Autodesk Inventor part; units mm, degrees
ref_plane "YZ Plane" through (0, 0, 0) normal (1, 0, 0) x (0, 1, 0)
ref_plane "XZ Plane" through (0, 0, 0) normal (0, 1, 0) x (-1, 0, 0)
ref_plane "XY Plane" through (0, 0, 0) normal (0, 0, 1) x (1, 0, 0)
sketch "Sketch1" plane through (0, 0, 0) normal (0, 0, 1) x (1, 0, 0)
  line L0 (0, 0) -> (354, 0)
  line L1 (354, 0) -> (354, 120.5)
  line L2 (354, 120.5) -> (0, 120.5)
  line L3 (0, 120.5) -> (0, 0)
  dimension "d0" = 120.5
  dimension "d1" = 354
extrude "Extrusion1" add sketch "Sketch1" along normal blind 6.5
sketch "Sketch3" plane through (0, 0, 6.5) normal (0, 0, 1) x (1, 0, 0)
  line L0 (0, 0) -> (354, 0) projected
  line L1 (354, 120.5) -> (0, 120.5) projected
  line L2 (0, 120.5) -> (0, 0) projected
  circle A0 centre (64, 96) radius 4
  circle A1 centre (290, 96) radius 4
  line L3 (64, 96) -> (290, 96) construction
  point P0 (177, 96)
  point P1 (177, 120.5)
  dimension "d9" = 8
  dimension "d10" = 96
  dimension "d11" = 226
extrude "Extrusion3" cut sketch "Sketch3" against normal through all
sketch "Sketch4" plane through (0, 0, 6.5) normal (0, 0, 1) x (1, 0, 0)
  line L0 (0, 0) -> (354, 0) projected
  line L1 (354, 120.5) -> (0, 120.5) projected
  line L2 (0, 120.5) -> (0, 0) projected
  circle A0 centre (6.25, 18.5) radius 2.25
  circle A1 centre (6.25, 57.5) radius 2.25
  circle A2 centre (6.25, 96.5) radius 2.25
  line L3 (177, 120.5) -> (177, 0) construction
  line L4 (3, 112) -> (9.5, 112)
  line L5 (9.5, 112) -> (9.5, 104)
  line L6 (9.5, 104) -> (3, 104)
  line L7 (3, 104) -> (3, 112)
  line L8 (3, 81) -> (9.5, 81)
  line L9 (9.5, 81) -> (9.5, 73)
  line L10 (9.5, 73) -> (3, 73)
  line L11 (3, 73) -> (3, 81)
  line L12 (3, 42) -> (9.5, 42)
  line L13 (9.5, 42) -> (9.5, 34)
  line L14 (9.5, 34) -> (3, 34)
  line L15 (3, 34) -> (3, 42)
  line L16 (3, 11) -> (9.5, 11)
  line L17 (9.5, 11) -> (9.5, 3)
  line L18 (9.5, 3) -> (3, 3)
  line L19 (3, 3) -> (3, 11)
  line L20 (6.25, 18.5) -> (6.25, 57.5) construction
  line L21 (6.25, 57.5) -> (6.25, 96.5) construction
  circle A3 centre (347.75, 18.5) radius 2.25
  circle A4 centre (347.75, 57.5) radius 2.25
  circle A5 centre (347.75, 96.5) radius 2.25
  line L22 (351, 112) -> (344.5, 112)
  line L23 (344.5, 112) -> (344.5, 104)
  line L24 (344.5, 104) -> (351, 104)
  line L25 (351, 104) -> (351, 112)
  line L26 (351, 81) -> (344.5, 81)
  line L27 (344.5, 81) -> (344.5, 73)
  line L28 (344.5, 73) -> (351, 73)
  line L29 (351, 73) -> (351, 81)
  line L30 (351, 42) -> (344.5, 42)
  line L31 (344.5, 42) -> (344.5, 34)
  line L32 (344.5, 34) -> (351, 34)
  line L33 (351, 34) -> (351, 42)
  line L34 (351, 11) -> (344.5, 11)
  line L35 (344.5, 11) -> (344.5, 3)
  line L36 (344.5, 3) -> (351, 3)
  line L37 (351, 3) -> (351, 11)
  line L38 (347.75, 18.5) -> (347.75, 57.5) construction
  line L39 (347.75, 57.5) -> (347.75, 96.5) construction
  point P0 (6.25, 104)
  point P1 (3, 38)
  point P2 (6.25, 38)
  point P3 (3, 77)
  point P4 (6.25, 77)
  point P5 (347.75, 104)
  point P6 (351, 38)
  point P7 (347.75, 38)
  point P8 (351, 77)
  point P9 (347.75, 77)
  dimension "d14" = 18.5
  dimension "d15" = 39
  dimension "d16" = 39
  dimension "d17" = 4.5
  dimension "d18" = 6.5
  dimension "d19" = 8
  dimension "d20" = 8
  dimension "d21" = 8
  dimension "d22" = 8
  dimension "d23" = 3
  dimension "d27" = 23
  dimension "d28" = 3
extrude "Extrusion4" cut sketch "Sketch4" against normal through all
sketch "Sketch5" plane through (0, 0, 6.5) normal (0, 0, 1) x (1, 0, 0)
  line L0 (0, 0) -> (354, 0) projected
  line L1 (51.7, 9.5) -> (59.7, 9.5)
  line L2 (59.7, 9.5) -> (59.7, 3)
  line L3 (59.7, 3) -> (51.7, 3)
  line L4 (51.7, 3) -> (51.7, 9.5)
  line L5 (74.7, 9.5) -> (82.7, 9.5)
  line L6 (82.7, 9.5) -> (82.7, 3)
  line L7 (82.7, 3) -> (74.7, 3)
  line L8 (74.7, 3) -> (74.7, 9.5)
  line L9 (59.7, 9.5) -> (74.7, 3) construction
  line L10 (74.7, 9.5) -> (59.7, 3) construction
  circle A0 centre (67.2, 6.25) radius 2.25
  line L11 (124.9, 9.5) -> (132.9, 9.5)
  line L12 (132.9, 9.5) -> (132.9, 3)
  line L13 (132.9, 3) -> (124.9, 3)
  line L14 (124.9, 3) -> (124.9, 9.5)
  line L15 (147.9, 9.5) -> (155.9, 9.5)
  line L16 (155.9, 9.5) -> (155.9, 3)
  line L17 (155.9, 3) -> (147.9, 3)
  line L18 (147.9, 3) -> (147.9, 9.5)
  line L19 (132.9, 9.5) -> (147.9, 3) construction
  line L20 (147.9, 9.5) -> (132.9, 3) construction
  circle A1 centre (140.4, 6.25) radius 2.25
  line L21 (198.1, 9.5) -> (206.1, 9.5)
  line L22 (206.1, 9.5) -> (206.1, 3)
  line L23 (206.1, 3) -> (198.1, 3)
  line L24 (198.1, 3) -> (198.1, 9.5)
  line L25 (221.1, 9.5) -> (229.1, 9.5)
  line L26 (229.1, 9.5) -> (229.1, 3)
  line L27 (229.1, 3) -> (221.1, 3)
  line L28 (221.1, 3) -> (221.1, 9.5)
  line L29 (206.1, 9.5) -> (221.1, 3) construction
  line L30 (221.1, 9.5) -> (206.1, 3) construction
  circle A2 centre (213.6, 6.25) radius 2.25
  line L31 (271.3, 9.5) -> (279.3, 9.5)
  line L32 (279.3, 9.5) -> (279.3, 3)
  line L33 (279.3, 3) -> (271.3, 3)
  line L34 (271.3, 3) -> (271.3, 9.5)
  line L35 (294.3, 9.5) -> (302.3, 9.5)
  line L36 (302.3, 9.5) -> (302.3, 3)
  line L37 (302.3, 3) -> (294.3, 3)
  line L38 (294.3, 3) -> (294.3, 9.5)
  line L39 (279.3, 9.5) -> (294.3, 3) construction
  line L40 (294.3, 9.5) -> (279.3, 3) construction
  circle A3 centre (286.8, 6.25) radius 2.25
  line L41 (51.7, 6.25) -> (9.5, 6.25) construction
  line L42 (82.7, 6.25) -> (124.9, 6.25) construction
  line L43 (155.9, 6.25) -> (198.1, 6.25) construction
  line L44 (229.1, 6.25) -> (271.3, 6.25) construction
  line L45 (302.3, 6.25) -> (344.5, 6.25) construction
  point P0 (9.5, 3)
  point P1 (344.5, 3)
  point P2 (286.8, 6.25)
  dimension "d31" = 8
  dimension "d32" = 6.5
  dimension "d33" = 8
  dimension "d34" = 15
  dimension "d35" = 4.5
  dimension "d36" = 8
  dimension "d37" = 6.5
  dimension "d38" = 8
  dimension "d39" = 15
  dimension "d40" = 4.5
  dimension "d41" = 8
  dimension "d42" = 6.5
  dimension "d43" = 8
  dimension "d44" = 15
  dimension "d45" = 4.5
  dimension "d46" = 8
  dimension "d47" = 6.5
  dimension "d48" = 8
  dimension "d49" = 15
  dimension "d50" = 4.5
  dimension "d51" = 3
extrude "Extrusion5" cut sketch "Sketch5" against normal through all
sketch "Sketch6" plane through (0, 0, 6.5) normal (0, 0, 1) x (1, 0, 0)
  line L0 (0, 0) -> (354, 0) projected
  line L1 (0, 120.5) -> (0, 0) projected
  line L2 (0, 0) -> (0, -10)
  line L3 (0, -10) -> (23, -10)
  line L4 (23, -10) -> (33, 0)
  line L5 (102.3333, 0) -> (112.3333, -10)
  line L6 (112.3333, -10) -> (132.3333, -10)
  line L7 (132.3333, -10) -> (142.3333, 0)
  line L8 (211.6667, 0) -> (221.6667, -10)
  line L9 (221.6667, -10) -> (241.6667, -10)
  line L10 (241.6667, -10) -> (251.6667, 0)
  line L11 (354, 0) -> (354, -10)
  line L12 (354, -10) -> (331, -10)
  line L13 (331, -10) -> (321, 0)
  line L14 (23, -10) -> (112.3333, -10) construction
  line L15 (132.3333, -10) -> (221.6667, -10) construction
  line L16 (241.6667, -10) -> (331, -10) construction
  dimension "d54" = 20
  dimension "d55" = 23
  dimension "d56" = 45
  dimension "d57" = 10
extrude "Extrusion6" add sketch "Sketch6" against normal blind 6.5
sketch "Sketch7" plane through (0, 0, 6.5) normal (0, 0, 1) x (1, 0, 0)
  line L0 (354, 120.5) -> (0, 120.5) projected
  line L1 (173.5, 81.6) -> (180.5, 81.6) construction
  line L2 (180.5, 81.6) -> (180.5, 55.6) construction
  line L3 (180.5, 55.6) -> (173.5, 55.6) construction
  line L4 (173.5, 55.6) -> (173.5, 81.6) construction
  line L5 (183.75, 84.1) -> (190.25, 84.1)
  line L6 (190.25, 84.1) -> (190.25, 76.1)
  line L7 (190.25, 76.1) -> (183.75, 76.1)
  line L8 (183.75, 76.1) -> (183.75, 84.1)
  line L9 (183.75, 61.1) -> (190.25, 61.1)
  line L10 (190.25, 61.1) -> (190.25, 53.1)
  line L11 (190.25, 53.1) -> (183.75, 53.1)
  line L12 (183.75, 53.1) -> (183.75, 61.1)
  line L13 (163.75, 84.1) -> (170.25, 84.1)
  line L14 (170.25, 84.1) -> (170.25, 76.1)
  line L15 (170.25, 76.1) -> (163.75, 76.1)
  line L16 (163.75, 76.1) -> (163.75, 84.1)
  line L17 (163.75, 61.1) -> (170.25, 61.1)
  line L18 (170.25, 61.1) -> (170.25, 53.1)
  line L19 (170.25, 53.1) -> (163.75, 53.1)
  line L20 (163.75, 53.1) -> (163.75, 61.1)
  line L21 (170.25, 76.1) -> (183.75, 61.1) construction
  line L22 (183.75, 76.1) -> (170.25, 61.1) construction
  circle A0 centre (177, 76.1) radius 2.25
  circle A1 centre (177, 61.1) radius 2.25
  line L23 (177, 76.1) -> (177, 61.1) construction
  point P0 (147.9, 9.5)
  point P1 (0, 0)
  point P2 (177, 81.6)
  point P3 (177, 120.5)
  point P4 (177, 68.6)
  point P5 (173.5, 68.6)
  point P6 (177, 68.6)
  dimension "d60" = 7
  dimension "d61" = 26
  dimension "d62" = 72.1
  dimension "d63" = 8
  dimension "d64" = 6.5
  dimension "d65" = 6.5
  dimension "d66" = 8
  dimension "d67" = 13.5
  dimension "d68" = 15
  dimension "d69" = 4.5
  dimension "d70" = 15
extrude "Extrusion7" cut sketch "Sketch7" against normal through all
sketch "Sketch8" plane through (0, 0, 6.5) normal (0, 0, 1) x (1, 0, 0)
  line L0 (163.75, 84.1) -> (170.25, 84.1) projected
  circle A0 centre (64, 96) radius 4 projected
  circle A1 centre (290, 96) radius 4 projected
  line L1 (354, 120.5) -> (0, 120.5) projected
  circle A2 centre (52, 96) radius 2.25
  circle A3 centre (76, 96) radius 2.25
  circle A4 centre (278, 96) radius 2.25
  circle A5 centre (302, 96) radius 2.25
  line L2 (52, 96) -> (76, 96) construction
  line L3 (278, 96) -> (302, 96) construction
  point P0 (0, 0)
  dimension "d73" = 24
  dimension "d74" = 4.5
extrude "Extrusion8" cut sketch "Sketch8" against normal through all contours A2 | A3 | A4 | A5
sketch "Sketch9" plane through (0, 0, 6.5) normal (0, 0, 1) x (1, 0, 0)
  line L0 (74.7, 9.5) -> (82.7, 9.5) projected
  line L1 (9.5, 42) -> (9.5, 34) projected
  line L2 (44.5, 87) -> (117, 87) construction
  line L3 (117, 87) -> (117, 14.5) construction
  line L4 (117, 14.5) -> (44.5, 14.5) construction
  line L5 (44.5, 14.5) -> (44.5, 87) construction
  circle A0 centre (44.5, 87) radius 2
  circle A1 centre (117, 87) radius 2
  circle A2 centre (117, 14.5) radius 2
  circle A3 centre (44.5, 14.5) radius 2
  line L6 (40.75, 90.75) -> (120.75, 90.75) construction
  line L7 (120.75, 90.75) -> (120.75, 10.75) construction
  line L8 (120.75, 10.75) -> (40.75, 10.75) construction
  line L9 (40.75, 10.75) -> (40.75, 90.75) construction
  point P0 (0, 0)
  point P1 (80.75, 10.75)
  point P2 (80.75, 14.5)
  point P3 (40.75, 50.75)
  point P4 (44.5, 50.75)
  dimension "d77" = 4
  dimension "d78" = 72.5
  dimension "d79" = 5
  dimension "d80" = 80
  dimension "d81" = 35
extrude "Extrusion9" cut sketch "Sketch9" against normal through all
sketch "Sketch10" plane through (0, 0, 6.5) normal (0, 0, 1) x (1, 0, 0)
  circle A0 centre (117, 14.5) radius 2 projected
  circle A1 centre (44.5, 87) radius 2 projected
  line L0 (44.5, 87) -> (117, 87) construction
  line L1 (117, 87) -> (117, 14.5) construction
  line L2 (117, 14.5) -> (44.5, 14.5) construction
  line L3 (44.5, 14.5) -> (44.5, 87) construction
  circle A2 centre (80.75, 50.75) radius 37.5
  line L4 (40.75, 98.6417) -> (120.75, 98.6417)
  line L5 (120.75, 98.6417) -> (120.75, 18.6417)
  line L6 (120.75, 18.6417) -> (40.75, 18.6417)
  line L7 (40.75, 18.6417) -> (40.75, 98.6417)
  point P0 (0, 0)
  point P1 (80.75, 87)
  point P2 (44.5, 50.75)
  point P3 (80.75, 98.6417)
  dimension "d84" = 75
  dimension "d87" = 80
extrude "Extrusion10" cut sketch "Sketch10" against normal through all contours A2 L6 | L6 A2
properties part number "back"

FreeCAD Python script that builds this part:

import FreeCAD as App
import Part
import Sketcher
Q = App.Units.Quantity


def add_polygon(sketch, points):
    """Adds a closed chain of lines whose ends are joined by coincident constraints."""
    first, n = sketch.GeometryCount, len(points)
    for a, b in zip(points, points[1:] + points[:1]):
        sketch.addGeometry(Part.LineSegment(App.Vector(*a, 0), App.Vector(*b, 0)), False)
    for i in range(n):
        sketch.addConstraint(Sketcher.Constraint("Coincident", first + i, 2, first + (i + 1) % n, 1))

doc = App.newDocument("Part")
body = doc.addObject("PartDesign::Body", "Body")

sketch1 = body.newObject("Sketcher::SketchObject", "Sketch")
sketch1.AttachmentSupport = (doc.getObject("XY_Plane"), [""])
sketch1.MapMode = "FlatFace"
add_polygon(sketch1, [(0, 120), (0, 0), (354, 0), (354, 120)])
sketch1.addConstraint([
    Sketcher.Constraint("Vertical", 0),
    Sketcher.Constraint("Horizontal", 1),
    Sketcher.Constraint("Vertical", 2),
    Sketcher.Constraint("Horizontal", 3),
    Sketcher.Constraint("Coincident", 0, 2, -1, 1),
    Sketcher.Constraint("DistanceX", 1, 1, 1, 2, Q("354 mm")),
    Sketcher.Constraint("DistanceY", 0, 2, 0, 1, Q("120.5 mm")),
])
pad1 = body.newObject("PartDesign::Pad", "Pad")
pad1.Profile = sketch1
pad1.Length = 6.5

sketch2 = body.newObject("Sketcher::SketchObject", "Sketch001")
sketch2.AttachmentSupport = (doc.getObject("XY_Plane"), [""])
sketch2.MapMode = "FlatFace"
sketch2.AttachmentOffset = App.Placement(App.Vector(0, 0, 6.5), App.Rotation())
sketch2.addGeometry([
    Part.Circle(App.Vector(64, 96, 0), App.Vector(0, 0, 1), 4),
    Part.Circle(App.Vector(290, 96, 0), App.Vector(0, 0, 1), 4),
], False)
sketch2.addConstraint([
    Sketcher.Constraint("Equal", 0, 1),
    Sketcher.Constraint("Horizontal", 0, 3, 1, 3),
    Sketcher.Constraint("Diameter", 0, Q("8 mm")),
    Sketcher.Constraint("DistanceY", -1, 1, 0, 3, Q("96 mm")),
    Sketcher.Constraint("DistanceX", 0, 3, 1, 3, Q("226 mm")),
    Sketcher.Constraint("DistanceX", -1, 1, 0, 3, Q("64 mm")),
])
pocket1 = body.newObject("PartDesign::Pocket", "Pocket")
pocket1.Profile = sketch2
pocket1.Type = "ThroughAll"

sketch3 = body.newObject("Sketcher::SketchObject", "Sketch002")
sketch3.AttachmentSupport = (doc.getObject("XY_Plane"), [""])
sketch3.MapMode = "FlatFace"
sketch3.AttachmentOffset = App.Placement(App.Vector(0, 0, 6.5), App.Rotation())
sketch3.addGeometry(Part.Circle(App.Vector(6.2, 18.5, 0), App.Vector(0, 0, 1), 2.2), False)
sketch3.addGeometry(Part.Circle(App.Vector(6.2, 57.5, 0), App.Vector(0, 0, 1), 2.2), False)
sketch3.addGeometry(Part.Circle(App.Vector(6.2, 96.5, 0), App.Vector(0, 0, 1), 2.2), False)
add_polygon(sketch3, [(9.5, 112), (3, 112), (3, 104), (9.5, 104)])
add_polygon(sketch3, [(9.5, 81), (3, 81), (3, 73), (9.5, 73)])
add_polygon(sketch3, [(9.5, 42), (3, 42), (3, 34), (9.5, 34)])
add_polygon(sketch3, [(9.5, 11), (3, 11), (3, 3), (9.5, 3)])
sketch3.addGeometry(Part.Circle(App.Vector(347.8, 18.5, 0), App.Vector(0, 0, 1), 2.2), False)
sketch3.addGeometry(Part.Circle(App.Vector(347.8, 57.5, 0), App.Vector(0, 0, 1), 2.2), False)
sketch3.addGeometry(Part.Circle(App.Vector(347.8, 96.5, 0), App.Vector(0, 0, 1), 2.2), False)
add_polygon(sketch3, [(351, 104), (351, 112), (344.5, 112), (344.5, 104)])
add_polygon(sketch3, [(351, 73), (351, 81), (344.5, 81), (344.5, 73)])
add_polygon(sketch3, [(351, 34), (351, 42), (344.5, 42), (344.5, 34)])
add_polygon(sketch3, [(351, 3), (351, 11), (344.5, 11), (344.5, 3)])
sketch3.addConstraint([
    Sketcher.Constraint("Horizontal", 3),
    Sketcher.Constraint("Vertical", 4),
    Sketcher.Constraint("Horizontal", 5),
    Sketcher.Constraint("Vertical", 6),
    Sketcher.Constraint("Horizontal", 7),
    Sketcher.Constraint("Vertical", 8),
    Sketcher.Constraint("Horizontal", 9),
    Sketcher.Constraint("Vertical", 10),
    Sketcher.Constraint("Horizontal", 11),
    Sketcher.Constraint("Vertical", 12),
    Sketcher.Constraint("Horizontal", 13),
    Sketcher.Constraint("Vertical", 14),
    Sketcher.Constraint("Horizontal", 15),
    Sketcher.Constraint("Vertical", 16),
    Sketcher.Constraint("Horizontal", 17),
    Sketcher.Constraint("Vertical", 18),
    Sketcher.Constraint("Vertical", 22),
    Sketcher.Constraint("Horizontal", 23),
    Sketcher.Constraint("Vertical", 24),
    Sketcher.Constraint("Horizontal", 25),
    Sketcher.Constraint("Vertical", 26),
    Sketcher.Constraint("Horizontal", 27),
    Sketcher.Constraint("Vertical", 28),
    Sketcher.Constraint("Horizontal", 29),
    Sketcher.Constraint("Vertical", 30),
    Sketcher.Constraint("Horizontal", 31),
    Sketcher.Constraint("Vertical", 32),
    Sketcher.Constraint("Horizontal", 33),
    Sketcher.Constraint("Vertical", 34),
    Sketcher.Constraint("Horizontal", 35),
    Sketcher.Constraint("Vertical", 36),
    Sketcher.Constraint("Horizontal", 37),
    Sketcher.Constraint("Equal", 0, 1),
    Sketcher.Constraint("Equal", 1, 2),
    Sketcher.Constraint("Equal", 2, 19),
    Sketcher.Constraint("Equal", 19, 20),
    Sketcher.Constraint("Equal", 20, 21),
    Sketcher.Constraint("Horizontal", 0, 3, 19, 3),
    Sketcher.Constraint("Horizontal", 1, 3, 20, 3),
    Sketcher.Constraint("Horizontal", 2, 3, 21, 3),
    Sketcher.Constraint("Horizontal", 6, 2, 22, 2),
    Sketcher.Constraint("Horizontal", 5, 2, 24, 2),
    Sketcher.Constraint("Horizontal", 10, 2, 26, 2),
    Sketcher.Constraint("Horizontal", 9, 2, 28, 2),
    Sketcher.Constraint("Horizontal", 14, 2, 30, 2),
    Sketcher.Constraint("Horizontal", 13, 2, 32, 2),
    Sketcher.Constraint("Horizontal", 18, 2, 34, 2),
    Sketcher.Constraint("Horizontal", 17, 2, 36, 2),
    Sketcher.Constraint("Vertical", 0, 3, 1, 3),
    Sketcher.Constraint("Vertical", 1, 3, 2, 3),
    Sketcher.Constraint("Vertical", 19, 3, 20, 3),
    Sketcher.Constraint("Vertical", 20, 3, 21, 3),
    Sketcher.Constraint("Vertical", 4, 2, 7, 2),
    Sketcher.Constraint("Vertical", 6, 2, 9, 2),
    Sketcher.Constraint("Vertical", 8, 2, 11, 2),
    Sketcher.Constraint("Vertical", 10, 2, 13, 2),
    Sketcher.Constraint("Vertical", 12, 2, 15, 2),
    Sketcher.Constraint("Vertical", 14, 2, 17, 2),
    Sketcher.Constraint("Vertical", 25, 2, 26, 2),
    Sketcher.Constraint("Vertical", 24, 2, 27, 2),
    Sketcher.Constraint("Vertical", 29, 2, 30, 2),
    Sketcher.Constraint("Vertical", 28, 2, 31, 2),
    Sketcher.Constraint("Vertical", 33, 2, 34, 2),
    Sketcher.Constraint("Vertical", 32, 2, 35, 2),
    Sketcher.Constraint("Equal", 17, 23),
    Sketcher.Constraint("Equal", 6, 8),
    Sketcher.Constraint("Equal", 10, 12),
    Sketcher.Constraint("Equal", 14, 16),
    Sketcher.Constraint("Diameter", 0, Q("4.5 mm")),
    Sketcher.Constraint("DistanceY", 4, 2, 4, 1, Q("8 mm")),
    Sketcher.Constraint("DistanceX", 3, 2, 3, 1, Q("6.5 mm")),
    Sketcher.Constraint("DistanceX", -1, 1, 3, 2, Q("3 mm")),
    Sketcher.Constraint("DistanceY", -1, 1, 16, 2, Q("3 mm")),
    Sketcher.Constraint("DistanceY", 0, 3, 1, 3, Q("39 mm")),
    Sketcher.Constraint("DistanceY", 1, 3, 2, 3, Q("39 mm")),
    Sketcher.Constraint("DistanceY", 7, 2, 4, 2, Q("23 mm")),
    Sketcher.Constraint("DistanceY", 11, 2, 7, 2, Q("39 mm")),
    Sketcher.Constraint("DistanceY", 15, 2, 12, 2, Q("23 mm")),
    Sketcher.Constraint("DistanceY", -1, 1, 0, 3, Q("18.5 mm")),
    Sketcher.Constraint("DistanceX", -1, 1, 22, 2, Q("351 mm")),
    Sketcher.Constraint("DistanceX", 0, 3, 19, 3, Q("341.5 mm")),
    Sketcher.Constraint("DistanceX", -1, 1, 0, 3, Q("6.25 mm")),
])
pocket2 = body.newObject("PartDesign::Pocket", "Pocket001")
pocket2.Profile = sketch3
pocket2.Type = "ThroughAll"

sketch4 = body.newObject("Sketcher::SketchObject", "Sketch003")
sketch4.AttachmentSupport = (doc.getObject("XY_Plane"), [""])
sketch4.MapMode = "FlatFace"
sketch4.AttachmentOffset = App.Placement(App.Vector(0, 0, 6.5), App.Rotation())
add_polygon(sketch4, [(59.7, 9.5), (51.7, 9.5), (51.7, 3), (59.7, 3)])
add_polygon(sketch4, [(82.7, 9.5), (74.7, 9.5), (74.7, 3), (82.7, 3)])
sketch4.addGeometry(Part.Circle(App.Vector(67.2, 6.2, 0), App.Vector(0, 0, 1), 2.2), False)
add_polygon(sketch4, [(132.9, 9.5), (124.9, 9.5), (124.9, 3), (132.9, 3)])
add_polygon(sketch4, [(155.9, 9.5), (147.9, 9.5), (147.9, 3), (155.9, 3)])
sketch4.addGeometry(Part.Circle(App.Vector(140.4, 6.2, 0), App.Vector(0, 0, 1), 2.2), False)
add_polygon(sketch4, [(206.1, 9.5), (198.1, 9.5), (198.1, 3), (206.1, 3)])
add_polygon(sketch4, [(229.1, 9.5), (221.1, 9.5), (221.1, 3), (229.1, 3)])
sketch4.addGeometry(Part.Circle(App.Vector(213.6, 6.2, 0), App.Vector(0, 0, 1), 2.2), False)
add_polygon(sketch4, [(279.3, 9.5), (271.3, 9.5), (271.3, 3), (279.3, 3)])
add_polygon(sketch4, [(302.3, 9.5), (294.3, 9.5), (294.3, 3), (302.3, 3)])
sketch4.addGeometry(Part.Circle(App.Vector(286.8, 6.2, 0), App.Vector(0, 0, 1), 2.2), False)
sketch4.addConstraint([
    Sketcher.Constraint("Horizontal", 0),
    Sketcher.Constraint("Vertical", 1),
    Sketcher.Constraint("Horizontal", 2),
    Sketcher.Constraint("Vertical", 3),
    Sketcher.Constraint("Horizontal", 4),
    Sketcher.Constraint("Vertical", 5),
    Sketcher.Constraint("Horizontal", 6),
    Sketcher.Constraint("Vertical", 7),
    Sketcher.Constraint("Horizontal", 9),
    Sketcher.Constraint("Vertical", 10),
    Sketcher.Constraint("Horizontal", 11),
    Sketcher.Constraint("Vertical", 12),
    Sketcher.Constraint("Horizontal", 13),
    Sketcher.Constraint("Vertical", 14),
    Sketcher.Constraint("Horizontal", 15),
    Sketcher.Constraint("Vertical", 16),
    Sketcher.Constraint("Horizontal", 18),
    Sketcher.Constraint("Vertical", 19),
    Sketcher.Constraint("Horizontal", 20),
    Sketcher.Constraint("Vertical", 21),
    Sketcher.Constraint("Horizontal", 22),
    Sketcher.Constraint("Vertical", 23),
    Sketcher.Constraint("Horizontal", 24),
    Sketcher.Constraint("Vertical", 25),
    Sketcher.Constraint("Horizontal", 27),
    Sketcher.Constraint("Vertical", 28),
    Sketcher.Constraint("Horizontal", 29),
    Sketcher.Constraint("Vertical", 30),
    Sketcher.Constraint("Horizontal", 31),
    Sketcher.Constraint("Vertical", 32),
    Sketcher.Constraint("Horizontal", 33),
    Sketcher.Constraint("Vertical", 34),
    Sketcher.Constraint("Equal", 8, 17),
    Sketcher.Constraint("Equal", 17, 26),
    Sketcher.Constraint("Equal", 26, 35),
    Sketcher.Constraint("Horizontal", 8, 3, 17, 3),
    Sketcher.Constraint("Horizontal", 17, 3, 26, 3),
    Sketcher.Constraint("Horizontal", 26, 3, 35, 3),
    Sketcher.Constraint("Horizontal", 3, 2, 4, 2),
    Sketcher.Constraint("Horizontal", 2, 2, 5, 2),
    Sketcher.Constraint("Horizontal", 7, 2, 9, 2),
    Sketcher.Constraint("Horizontal", 6, 2, 10, 2),
    Sketcher.Constraint("Horizontal", 12, 2, 13, 2),
    Sketcher.Constraint("Horizontal", 11, 2, 14, 2),
    Sketcher.Constraint("Horizontal", 16, 2, 18, 2),
    Sketcher.Constraint("Horizontal", 15, 2, 19, 2),
    Sketcher.Constraint("Horizontal", 21, 2, 22, 2),
    Sketcher.Constraint("Horizontal", 20, 2, 23, 2),
    Sketcher.Constraint("Horizontal", 25, 2, 27, 2),
    Sketcher.Constraint("Horizontal", 24, 2, 28, 2),
    Sketcher.Constraint("Horizontal", 30, 2, 31, 2),
    Sketcher.Constraint("Horizontal", 29, 2, 32, 2),
    Sketcher.Constraint("Equal", 2, 4),
    Sketcher.Constraint("Equal", 6, 9),
    Sketcher.Constraint("Equal", 11, 13),
    Sketcher.Constraint("Equal", 15, 18),
    Sketcher.Constraint("Equal", 20, 22),
    Sketcher.Constraint("Equal", 24, 27),
    Sketcher.Constraint("Equal", 29, 31),
    Sketcher.Constraint("Diameter", 8, Q("4.5 mm")),
    Sketcher.Constraint("DistanceX", 0, 2, 0, 1, Q("8 mm")),
    Sketcher.Constraint("DistanceY", 1, 2, 1, 1, Q("6.5 mm")),
    Sketcher.Constraint("DistanceY", -1, 1, 1, 2, Q("3 mm")),
    Sketcher.Constraint("DistanceX", 3, 2, 4, 2, Q("15 mm")),
    Sketcher.Constraint("DistanceX", 12, 2, 13, 2, Q("15 mm")),
    Sketcher.Constraint("DistanceX", 21, 2, 22, 2, Q("15 mm")),
    Sketcher.Constraint("DistanceX", 30, 2, 31, 2, Q("15 mm")),
    Sketcher.Constraint("DistanceX", -1, 1, 8, 3, Q("67.2 mm")),
    Sketcher.Constraint("DistanceX", -1, 1, 17, 3, Q("140.4 mm")),
    Sketcher.Constraint("DistanceX", -1, 1, 26, 3, Q("213.6 mm")),
    Sketcher.Constraint("DistanceX", -1, 1, 35, 3, Q("286.8 mm")),
    Sketcher.Constraint("DistanceX", -1, 1, 0, 2, Q("51.7 mm")),
    Sketcher.Constraint("DistanceX", -1, 1, 9, 2, Q("124.9 mm")),
    Sketcher.Constraint("DistanceX", -1, 1, 18, 2, Q("198.1 mm")),
    Sketcher.Constraint("DistanceX", -1, 1, 27, 2, Q("271.3 mm")),
    Sketcher.Constraint("DistanceY", -1, 1, 8, 3, Q("6.25 mm")),
])
pocket3 = body.newObject("PartDesign::Pocket", "Pocket002")
pocket3.Profile = sketch4
pocket3.Type = "ThroughAll"

sketch5 = body.newObject("Sketcher::SketchObject", "Sketch004")
sketch5.AttachmentSupport = (doc.getObject("XY_Plane"), [""])
sketch5.MapMode = "FlatFace"
sketch5.AttachmentOffset = App.Placement(App.Vector(0, 0, 6.5), App.Rotation())
add_polygon(sketch5, [(354, 0), (321, 0), (331, -10), (354, -10)])
add_polygon(sketch5, [(252, 0), (212, 0), (222, -10), (242, -10)])
add_polygon(sketch5, [(142, 0), (102, 0), (112, -10), (132, -10)])
add_polygon(sketch5, [(33, 0), (0, 0), (0, -10), (23, -10)])
sketch5.addConstraint([
    Sketcher.Constraint("Horizontal", 0),
    Sketcher.Constraint("Horizontal", 2),
    Sketcher.Constraint("Vertical", 3),
    Sketcher.Constraint("Horizontal", 4),
    Sketcher.Constraint("Horizontal", 6),
    Sketcher.Constraint("Horizontal", 8),
    Sketcher.Constraint("Horizontal", 10),
    Sketcher.Constraint("Horizontal", 12),
    Sketcher.Constraint("Vertical", 13),
    Sketcher.Constraint("Horizontal", 14),
    Sketcher.Constraint("Coincident", 12, 2, -1, 1),
    Sketcher.Constraint("PointOnObject", 0, 2, -1),
    Sketcher.Constraint("PointOnObject", 4, 2, -1),
    Sketcher.Constraint("PointOnObject", 8, 2, -1),
    Sketcher.Constraint("Parallel", 1, 5),
    Sketcher.Constraint("Perpendicular", 5, 7),
    Sketcher.Constraint("Perpendicular", 7, 9),
    Sketcher.Constraint("Perpendicular", 9, 11),
    Sketcher.Constraint("Parallel", 11, 15),
    Sketcher.Constraint("Horizontal", 2, 2, 5, 2),
    Sketcher.Constraint("Horizontal", 6, 2, 9, 2),
    Sketcher.Constraint("Horizontal", 10, 2, 13, 2),
    Sketcher.Constraint("Equal", 4, 8),
    Sketcher.Constraint("Equal", 0, 12),
    Sketcher.Constraint("Equal", 2, 14),
    Sketcher.Constraint("DistanceX", 2, 1, 2, 2, Q("23 mm")),
    Sketcher.Constraint("DistanceX", 6, 1, 6, 2, Q("20 mm")),
    Sketcher.Constraint("DistanceY", 3, 1, 3, 2, Q("10 mm")),
    Sketcher.Constraint("DistanceX", -1, 1, 0, 2, Q("321 mm")),
    Sketcher.Constraint("DistanceX", -1, 1, 4, 2, Q("211.6667 mm")),
    Sketcher.Constraint("DistanceX", -1, 1, 8, 2, Q("102.3333 mm")),
])
pad2 = body.newObject("PartDesign::Pad", "Pad001")
pad2.Profile = sketch5
pad2.Length = 6.5
pad2.Reversed = True

sketch6 = body.newObject("Sketcher::SketchObject", "Sketch005")
sketch6.AttachmentSupport = (doc.getObject("XY_Plane"), [""])
sketch6.MapMode = "FlatFace"
sketch6.AttachmentOffset = App.Placement(App.Vector(0, 0, 6.5), App.Rotation())
add_polygon(sketch6, [(190.2, 84.1), (183.8, 84.1), (183.8, 76.1), (190.2, 76.1)])
add_polygon(sketch6, [(190.2, 61.1), (183.8, 61.1), (183.8, 53.1), (190.2, 53.1)])
add_polygon(sketch6, [(170.2, 84.1), (163.8, 84.1), (163.8, 76.1), (170.2, 76.1)])
add_polygon(sketch6, [(170.2, 61.1), (163.8, 61.1), (163.8, 53.1), (170.2, 53.1)])
sketch6.addGeometry(Part.Circle(App.Vector(177, 76.1, 0), App.Vector(0, 0, 1), 2.2), False)
sketch6.addGeometry(Part.Circle(App.Vector(177, 61.1, 0), App.Vector(0, 0, 1), 2.2), False)
sketch6.addConstraint([
    Sketcher.Constraint("Horizontal", 0),
    Sketcher.Constraint("Vertical", 1),
    Sketcher.Constraint("Horizontal", 2),
    Sketcher.Constraint("Vertical", 3),
    Sketcher.Constraint("Horizontal", 4),
    Sketcher.Constraint("Vertical", 5),
    Sketcher.Constraint("Horizontal", 6),
    Sketcher.Constraint("Vertical", 7),
    Sketcher.Constraint("Horizontal", 8),
    Sketcher.Constraint("Vertical", 9),
    Sketcher.Constraint("Horizontal", 10),
    Sketcher.Constraint("Vertical", 11),
    Sketcher.Constraint("Horizontal", 12),
    Sketcher.Constraint("Vertical", 13),
    Sketcher.Constraint("Horizontal", 14),
    Sketcher.Constraint("Vertical", 15),
    Sketcher.Constraint("Equal", 16, 17),
    Sketcher.Constraint("Horizontal", 16, 3, 1, 2),
    Sketcher.Constraint("Horizontal", 17, 3, 4, 2),
    Sketcher.Constraint("Horizontal", 3, 2, 8, 2),
    Sketcher.Constraint("Horizontal", 2, 2, 9, 2),
    Sketcher.Constraint("Horizontal", 7, 2, 12, 2),
    Sketcher.Constraint("Horizontal", 6, 2, 13, 2),
    Sketcher.Constraint("Vertical", 16, 3, 17, 3),
    Sketcher.Constraint("Vertical", 1, 2, 4, 2),
    Sketcher.Constraint("Vertical", 3, 2, 6, 2),
    Sketcher.Constraint("Vertical", 9, 2, 12, 2),
    Sketcher.Constraint("Vertical", 11, 2, 14, 2),
    Sketcher.Constraint("Equal", 6, 8),
    Sketcher.Constraint("Equal", 3, 5),
    Sketcher.Constraint("Diameter", 16, Q("4.5 mm")),
    Sketcher.Constraint("DistanceY", 1, 2, 1, 1, Q("8 mm")),
    Sketcher.Constraint("DistanceX", 0, 2, 0, 1, Q("6.5 mm")),
    Sketcher.Constraint("DistanceY", 17, 3, 16, 3, Q("15 mm")),
    Sketcher.Constraint("DistanceX", 10, 2, 1, 2, Q("13.5 mm")),
    Sketcher.Constraint("DistanceX", -1, 1, 16, 3, Q("177 mm")),
    Sketcher.Constraint("DistanceY", -1, 1, 16, 3, Q("76.1 mm")),
    Sketcher.Constraint("DistanceX", -1, 1, 0, 2, Q("183.75 mm")),
])
pocket4 = body.newObject("PartDesign::Pocket", "Pocket003")
pocket4.Profile = sketch6
pocket4.Type = "ThroughAll"

sketch7 = body.newObject("Sketcher::SketchObject", "Sketch006")
sketch7.AttachmentSupport = (doc.getObject("XY_Plane"), [""])
sketch7.MapMode = "FlatFace"
sketch7.AttachmentOffset = App.Placement(App.Vector(0, 0, 6.5), App.Rotation())
sketch7.addGeometry([
    Part.Circle(App.Vector(52, 96, 0), App.Vector(0, 0, 1), 2.2),
    Part.Circle(App.Vector(76, 96, 0), App.Vector(0, 0, 1), 2.2),
    Part.Circle(App.Vector(278, 96, 0), App.Vector(0, 0, 1), 2.2),
    Part.Circle(App.Vector(302, 96, 0), App.Vector(0, 0, 1), 2.2),
], False)
sketch7.addConstraint([
    Sketcher.Constraint("Equal", 0, 1),
    Sketcher.Constraint("Equal", 1, 2),
    Sketcher.Constraint("Equal", 2, 3),
    Sketcher.Constraint("Horizontal", 0, 3, 1, 3),
    Sketcher.Constraint("Horizontal", 1, 3, 2, 3),
    Sketcher.Constraint("Horizontal", 2, 3, 3, 3),
    Sketcher.Constraint("Diameter", 0, Q("4.5 mm")),
    Sketcher.Constraint("DistanceX", 0, 3, 1, 3, Q("24 mm")),
    Sketcher.Constraint("DistanceX", 2, 3, 3, 3, Q("24 mm")),
    Sketcher.Constraint("DistanceX", -1, 1, 0, 3, Q("52 mm")),
    Sketcher.Constraint("DistanceY", -1, 1, 0, 3, Q("96 mm")),
    Sketcher.Constraint("DistanceX", -1, 1, 2, 3, Q("278 mm")),
])
pocket5 = body.newObject("PartDesign::Pocket", "Pocket004")
pocket5.Profile = sketch7
pocket5.Type = "ThroughAll"

sketch8 = body.newObject("Sketcher::SketchObject", "Sketch007")
sketch8.AttachmentSupport = (doc.getObject("XY_Plane"), [""])
sketch8.MapMode = "FlatFace"
sketch8.AttachmentOffset = App.Placement(App.Vector(0, 0, 6.5), App.Rotation())
sketch8.addGeometry([
    Part.Circle(App.Vector(44.5, 87, 0), App.Vector(0, 0, 1), 2),
    Part.Circle(App.Vector(117, 87, 0), App.Vector(0, 0, 1), 2),
    Part.Circle(App.Vector(117, 14.5, 0), App.Vector(0, 0, 1), 2),
    Part.Circle(App.Vector(44.5, 14.5, 0), App.Vector(0, 0, 1), 2),
], False)
sketch8.addConstraint([
    Sketcher.Constraint("Equal", 0, 1),
    Sketcher.Constraint("Equal", 1, 2),
    Sketcher.Constraint("Equal", 2, 3),
    Sketcher.Constraint("Horizontal", 0, 3, 1, 3),
    Sketcher.Constraint("Horizontal", 2, 3, 3, 3),
    Sketcher.Constraint("Vertical", 1, 3, 2, 3),
    Sketcher.Constraint("Vertical", 0, 3, 3, 3),
    Sketcher.Constraint("Diameter", 0, Q("4 mm")),
    Sketcher.Constraint("DistanceX", 0, 3, 1, 3, Q("72.5 mm")),
    Sketcher.Constraint("DistanceY", 2, 3, 1, 3, Q("72.5 mm")),
    Sketcher.Constraint("DistanceY", -1, 1, 0, 3, Q("87 mm")),
    Sketcher.Constraint("DistanceX", -1, 1, 1, 3, Q("117 mm")),
])
pocket6 = body.newObject("PartDesign::Pocket", "Pocket005")
pocket6.Profile = sketch8
pocket6.Type = "ThroughAll"

sketch9 = body.newObject("Sketcher::SketchObject", "Sketch008")
sketch9.AttachmentSupport = (doc.getObject("XY_Plane"), [""])
sketch9.MapMode = "FlatFace"
sketch9.AttachmentOffset = App.Placement(App.Vector(0, 0, 6.5), App.Rotation())
sketch9.addGeometry(Part.Circle(App.Vector(81, 51, 0), App.Vector(0, 0, 1), 38), False)
sketch9.addConstraint([
    Sketcher.Constraint("Diameter", 0, Q("75 mm")),
    Sketcher.Constraint("DistanceX", -1, 1, 0, 3, Q("80.75 mm")),
    Sketcher.Constraint("DistanceY", -1, 1, 0, 3, Q("50.75 mm")),
])
pocket7 = body.newObject("PartDesign::Pocket", "Pocket006")
pocket7.Profile = sketch9
pocket7.Type = "ThroughAll"

doc.recompute()
